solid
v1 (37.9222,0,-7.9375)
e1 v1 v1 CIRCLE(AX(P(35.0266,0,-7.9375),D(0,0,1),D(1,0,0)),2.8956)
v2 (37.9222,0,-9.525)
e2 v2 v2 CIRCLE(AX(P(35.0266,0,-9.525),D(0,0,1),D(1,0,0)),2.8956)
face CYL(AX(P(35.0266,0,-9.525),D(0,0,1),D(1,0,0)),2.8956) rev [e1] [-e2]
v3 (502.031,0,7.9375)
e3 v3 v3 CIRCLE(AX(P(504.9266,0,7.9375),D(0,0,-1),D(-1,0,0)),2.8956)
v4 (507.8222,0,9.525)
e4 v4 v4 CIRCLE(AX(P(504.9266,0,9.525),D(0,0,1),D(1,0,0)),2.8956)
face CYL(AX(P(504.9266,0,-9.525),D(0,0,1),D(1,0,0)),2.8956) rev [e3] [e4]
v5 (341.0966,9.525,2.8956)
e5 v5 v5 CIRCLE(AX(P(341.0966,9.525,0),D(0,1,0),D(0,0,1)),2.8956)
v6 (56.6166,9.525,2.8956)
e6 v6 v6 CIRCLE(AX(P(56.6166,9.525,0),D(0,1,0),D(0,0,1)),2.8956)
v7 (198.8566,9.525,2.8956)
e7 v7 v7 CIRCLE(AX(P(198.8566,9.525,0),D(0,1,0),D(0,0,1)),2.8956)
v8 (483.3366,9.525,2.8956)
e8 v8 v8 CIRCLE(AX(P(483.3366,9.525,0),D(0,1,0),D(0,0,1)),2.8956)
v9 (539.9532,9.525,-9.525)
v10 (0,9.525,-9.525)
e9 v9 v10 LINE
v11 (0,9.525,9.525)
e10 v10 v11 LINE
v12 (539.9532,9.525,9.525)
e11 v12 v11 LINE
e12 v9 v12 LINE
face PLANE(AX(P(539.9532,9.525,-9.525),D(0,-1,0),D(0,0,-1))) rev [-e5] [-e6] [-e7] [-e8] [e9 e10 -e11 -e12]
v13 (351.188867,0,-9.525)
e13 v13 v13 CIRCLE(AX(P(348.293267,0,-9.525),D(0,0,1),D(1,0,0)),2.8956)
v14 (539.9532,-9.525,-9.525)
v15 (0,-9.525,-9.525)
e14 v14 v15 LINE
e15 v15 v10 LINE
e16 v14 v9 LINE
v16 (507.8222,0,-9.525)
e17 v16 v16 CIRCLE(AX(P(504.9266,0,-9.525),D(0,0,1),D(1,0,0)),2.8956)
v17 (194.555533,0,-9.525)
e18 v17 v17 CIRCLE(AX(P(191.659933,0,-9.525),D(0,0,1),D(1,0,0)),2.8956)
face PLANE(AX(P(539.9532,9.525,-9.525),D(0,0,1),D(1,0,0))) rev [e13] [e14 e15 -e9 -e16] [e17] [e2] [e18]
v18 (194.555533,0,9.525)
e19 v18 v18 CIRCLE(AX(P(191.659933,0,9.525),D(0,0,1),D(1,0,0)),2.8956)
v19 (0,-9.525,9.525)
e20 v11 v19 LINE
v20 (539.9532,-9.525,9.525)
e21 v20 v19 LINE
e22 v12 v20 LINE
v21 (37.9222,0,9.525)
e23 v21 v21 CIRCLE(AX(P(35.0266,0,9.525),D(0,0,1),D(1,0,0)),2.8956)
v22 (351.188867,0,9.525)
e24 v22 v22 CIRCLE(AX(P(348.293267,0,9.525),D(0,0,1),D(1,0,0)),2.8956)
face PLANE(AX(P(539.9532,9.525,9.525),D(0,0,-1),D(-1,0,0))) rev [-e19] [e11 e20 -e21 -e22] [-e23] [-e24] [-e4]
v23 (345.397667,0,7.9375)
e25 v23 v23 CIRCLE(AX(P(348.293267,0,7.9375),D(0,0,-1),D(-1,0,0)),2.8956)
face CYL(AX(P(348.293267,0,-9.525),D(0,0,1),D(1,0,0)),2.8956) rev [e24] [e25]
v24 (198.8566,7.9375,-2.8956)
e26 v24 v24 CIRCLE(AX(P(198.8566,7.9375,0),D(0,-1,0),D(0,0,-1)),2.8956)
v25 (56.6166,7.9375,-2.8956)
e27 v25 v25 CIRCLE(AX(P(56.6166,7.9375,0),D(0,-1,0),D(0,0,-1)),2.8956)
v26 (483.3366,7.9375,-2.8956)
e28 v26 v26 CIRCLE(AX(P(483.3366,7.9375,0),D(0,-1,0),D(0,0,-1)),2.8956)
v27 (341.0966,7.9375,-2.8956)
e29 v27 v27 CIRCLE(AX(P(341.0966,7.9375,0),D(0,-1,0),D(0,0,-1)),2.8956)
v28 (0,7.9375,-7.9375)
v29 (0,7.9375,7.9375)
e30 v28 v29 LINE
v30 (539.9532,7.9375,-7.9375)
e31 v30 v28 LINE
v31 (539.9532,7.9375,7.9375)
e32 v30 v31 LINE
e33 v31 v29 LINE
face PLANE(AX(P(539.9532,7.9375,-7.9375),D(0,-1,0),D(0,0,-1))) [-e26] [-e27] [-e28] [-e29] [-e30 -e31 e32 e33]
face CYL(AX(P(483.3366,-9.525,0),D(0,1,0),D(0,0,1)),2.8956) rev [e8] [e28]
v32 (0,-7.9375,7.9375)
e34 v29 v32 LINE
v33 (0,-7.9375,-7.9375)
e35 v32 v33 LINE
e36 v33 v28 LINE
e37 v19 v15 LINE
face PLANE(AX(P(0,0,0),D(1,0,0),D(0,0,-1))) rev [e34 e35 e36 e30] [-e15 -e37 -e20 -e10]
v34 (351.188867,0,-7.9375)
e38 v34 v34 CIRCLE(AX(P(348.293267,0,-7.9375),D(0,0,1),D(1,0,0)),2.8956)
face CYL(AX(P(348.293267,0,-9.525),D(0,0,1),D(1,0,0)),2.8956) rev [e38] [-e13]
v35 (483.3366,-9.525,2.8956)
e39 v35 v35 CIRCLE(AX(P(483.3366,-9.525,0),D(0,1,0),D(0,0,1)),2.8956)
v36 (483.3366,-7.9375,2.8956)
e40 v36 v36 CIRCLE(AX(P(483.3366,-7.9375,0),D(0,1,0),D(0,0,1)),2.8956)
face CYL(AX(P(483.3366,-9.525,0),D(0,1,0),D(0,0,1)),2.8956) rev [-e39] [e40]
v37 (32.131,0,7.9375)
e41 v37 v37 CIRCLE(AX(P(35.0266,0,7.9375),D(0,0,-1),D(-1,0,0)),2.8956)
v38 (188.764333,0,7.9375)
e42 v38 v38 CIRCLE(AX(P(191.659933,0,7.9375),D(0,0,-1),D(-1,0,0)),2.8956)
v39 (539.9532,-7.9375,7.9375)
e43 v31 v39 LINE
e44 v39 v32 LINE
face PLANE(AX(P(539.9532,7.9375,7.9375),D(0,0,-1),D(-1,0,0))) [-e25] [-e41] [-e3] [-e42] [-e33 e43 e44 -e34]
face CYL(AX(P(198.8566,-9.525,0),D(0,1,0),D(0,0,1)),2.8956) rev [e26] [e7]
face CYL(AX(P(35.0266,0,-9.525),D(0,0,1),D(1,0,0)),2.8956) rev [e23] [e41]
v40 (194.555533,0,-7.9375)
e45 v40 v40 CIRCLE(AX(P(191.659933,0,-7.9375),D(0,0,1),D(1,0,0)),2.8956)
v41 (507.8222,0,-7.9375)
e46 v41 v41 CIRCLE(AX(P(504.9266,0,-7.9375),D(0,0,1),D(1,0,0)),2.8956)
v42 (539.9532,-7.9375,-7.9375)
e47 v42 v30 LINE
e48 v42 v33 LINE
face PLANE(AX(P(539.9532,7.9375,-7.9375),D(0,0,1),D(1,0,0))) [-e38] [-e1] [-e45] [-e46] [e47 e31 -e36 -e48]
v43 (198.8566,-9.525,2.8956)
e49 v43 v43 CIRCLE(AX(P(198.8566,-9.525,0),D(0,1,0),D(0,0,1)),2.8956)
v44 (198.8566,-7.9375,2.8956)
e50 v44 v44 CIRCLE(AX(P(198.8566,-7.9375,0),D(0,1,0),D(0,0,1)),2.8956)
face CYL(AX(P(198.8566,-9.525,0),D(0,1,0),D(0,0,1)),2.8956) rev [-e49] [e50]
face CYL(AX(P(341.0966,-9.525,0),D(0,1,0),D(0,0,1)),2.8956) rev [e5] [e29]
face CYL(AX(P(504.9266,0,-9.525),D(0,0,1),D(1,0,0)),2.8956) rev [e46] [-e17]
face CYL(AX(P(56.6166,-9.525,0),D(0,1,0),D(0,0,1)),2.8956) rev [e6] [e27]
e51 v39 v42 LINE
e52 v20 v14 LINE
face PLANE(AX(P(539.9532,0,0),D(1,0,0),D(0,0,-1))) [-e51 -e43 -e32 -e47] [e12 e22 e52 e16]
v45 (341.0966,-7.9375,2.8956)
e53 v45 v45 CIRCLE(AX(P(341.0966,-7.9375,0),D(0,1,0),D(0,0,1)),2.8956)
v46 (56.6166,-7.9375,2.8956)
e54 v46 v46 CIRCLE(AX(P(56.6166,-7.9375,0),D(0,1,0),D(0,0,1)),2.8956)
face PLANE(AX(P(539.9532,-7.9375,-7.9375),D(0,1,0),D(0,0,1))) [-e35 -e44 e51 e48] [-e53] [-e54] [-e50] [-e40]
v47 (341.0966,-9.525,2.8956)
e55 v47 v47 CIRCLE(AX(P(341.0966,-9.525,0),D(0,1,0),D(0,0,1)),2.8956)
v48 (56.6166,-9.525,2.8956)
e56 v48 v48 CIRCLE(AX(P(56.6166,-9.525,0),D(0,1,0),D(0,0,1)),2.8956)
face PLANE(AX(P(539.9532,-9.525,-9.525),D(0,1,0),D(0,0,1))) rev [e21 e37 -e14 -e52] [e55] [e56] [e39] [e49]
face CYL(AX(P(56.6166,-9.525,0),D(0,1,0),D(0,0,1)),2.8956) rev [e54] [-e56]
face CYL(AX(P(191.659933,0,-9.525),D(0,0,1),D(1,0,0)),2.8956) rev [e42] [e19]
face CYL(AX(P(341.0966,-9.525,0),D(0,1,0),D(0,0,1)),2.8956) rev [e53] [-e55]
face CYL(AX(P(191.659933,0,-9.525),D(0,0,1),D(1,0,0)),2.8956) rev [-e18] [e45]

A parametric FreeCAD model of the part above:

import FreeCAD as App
import Part
import Sketcher
from FreeCAD import Vector
Q = App.Units.Quantity

doc = App.newDocument("Part")
body = doc.addObject("PartDesign::Body", "Body")

sketch1 = body.newObject("Sketcher::SketchObject", "Sketch")
sketch1.AttachmentSupport = (doc.getObject("YZ_Plane"), [""])
sketch1.MapMode = "FlatFace"
sketch1.addGeometry([
    Part.LineSegment(Vector(10, -10, 0), Vector(10, 10, 0)),
    Part.LineSegment(Vector(10, 10, 0), Vector(-10, 10, 0)),
    Part.LineSegment(Vector(-10, 10, 0), Vector(-10, -10, 0)),
    Part.LineSegment(Vector(-10, -10, 0), Vector(10, -10, 0)),
    Part.LineSegment(Vector(-8, 8, 0), Vector(8, 8, 0)),
    Part.LineSegment(Vector(8, 8, 0), Vector(8, -8, 0)),
    Part.LineSegment(Vector(8, -8, 0), Vector(-8, -8, 0)),
    Part.LineSegment(Vector(-8, -8, 0), Vector(-8, 8, 0)),
], False)
sketch1.addConstraint([
    Sketcher.Constraint("Coincident", 0, 2, 1, 1),
    Sketcher.Constraint("Coincident", 1, 2, 2, 1),
    Sketcher.Constraint("Coincident", 2, 2, 3, 1),
    Sketcher.Constraint("Coincident", 3, 2, 0, 1),
    Sketcher.Constraint("Coincident", 4, 2, 5, 1),
    Sketcher.Constraint("Coincident", 5, 2, 6, 1),
    Sketcher.Constraint("Coincident", 6, 2, 7, 1),
    Sketcher.Constraint("Coincident", 7, 2, 4, 1),
    Sketcher.Constraint("Vertical", 0),
    Sketcher.Constraint("Horizontal", 1),
    Sketcher.Constraint("Vertical", 2),
    Sketcher.Constraint("Horizontal", 3),
    Sketcher.Constraint("Horizontal", 4),
    Sketcher.Constraint("Vertical", 5),
    Sketcher.Constraint("Horizontal", 6),
    Sketcher.Constraint("Vertical", 7),
    Sketcher.Constraint("Symmetric", 0, 2, 2, 2, -1, 1),
    Sketcher.Constraint("Symmetric", 4, 2, 6, 2, -1, 1),
    Sketcher.Constraint("Equal", 3, 0),
    Sketcher.Constraint("Equal", 6, 5),
    Sketcher.Constraint("DistanceX", 1, 2, 1, 1, Q("0.75 in")),
    Sketcher.Constraint("DistanceX", 4, 1, 4, 2, Q("0.625 in")),
])
pad1 = body.newObject("PartDesign::Pad", "Pad")
pad1.Profile = sketch1
pad1.Length = Q("21.258 in")

sketch2 = body.newObject("Sketcher::SketchObject", "Sketch001")
sketch2.AttachmentSupport = (doc.getObject("XY_Plane"), [""])
sketch2.MapMode = "FlatFace"
sketch2.AttachmentOffset = App.Placement(Vector(0, 0, 0.375 * 25.4), App.Rotation())
sketch2.addGeometry(Part.Circle(Vector(504.9, 0, 0), Vector(0, 0, 1), 2.9), False)
sketch2.addConstraint([
    Sketcher.Constraint("PointOnObject", 0, 3, -1),
    Sketcher.Constraint("Diameter", 0, Q("0.228 in")),
    Sketcher.Constraint("DistanceX", -1, 1, 0, 3, Q("19.879 in")),
])
pocket1 = body.newObject("PartDesign::Pocket", "Pocket")
pocket1.Profile = sketch2
pocket1.Type = "ThroughAll"
doc.recompute()

linearpattern = body.newObject("PartDesign::LinearPattern", "LinearPattern")
linearpattern.Originals = [pocket1]
linearpattern.Direction = (doc.getObject("X_Axis"), [""])
linearpattern.Mode = "offset"
linearpattern.Offset = 156.633333
linearpattern.Occurrences = 4
linearpattern.Reversed = True
body.Tip = linearpattern

sketch3 = body.newObject("Sketcher::SketchObject", "Sketch002")
sketch3.AttachmentSupport = (doc.getObject("XZ_Plane"), [""])
sketch3.MapMode = "FlatFace"
sketch3.AttachmentOffset = App.Placement(Vector(0, 0, -0.375 * 25.4), App.Rotation())
sketch3.addGeometry(Part.Circle(Vector(56.6, 0, 0), Vector(0, 0, 1), 2.9), False)
sketch3.addConstraint([
    Sketcher.Constraint("PointOnObject", 0, 3, -1),
    Sketcher.Constraint("Diameter", 0, Q("0.228 in")),
    Sketcher.Constraint("DistanceX", -1, 1, 0, 3, Q("2.229 in")),
])
pocket2 = body.newObject("PartDesign::Pocket", "Pocket001")
pocket2.Profile = sketch3
pocket2.Type = "ThroughAll"
pocket2.Reversed = True
doc.recompute()

linearpattern2 = body.newObject("PartDesign::LinearPattern", "LinearPattern001")
linearpattern2.Originals = [pocket2]
linearpattern2.Direction = (doc.getObject("X_Axis"), [""])
linearpattern2.Mode = "offset"
linearpattern2.Offset = Q("5.6 in")
linearpattern2.Occurrences = 4
body.Tip = linearpattern2

doc.recompute()
